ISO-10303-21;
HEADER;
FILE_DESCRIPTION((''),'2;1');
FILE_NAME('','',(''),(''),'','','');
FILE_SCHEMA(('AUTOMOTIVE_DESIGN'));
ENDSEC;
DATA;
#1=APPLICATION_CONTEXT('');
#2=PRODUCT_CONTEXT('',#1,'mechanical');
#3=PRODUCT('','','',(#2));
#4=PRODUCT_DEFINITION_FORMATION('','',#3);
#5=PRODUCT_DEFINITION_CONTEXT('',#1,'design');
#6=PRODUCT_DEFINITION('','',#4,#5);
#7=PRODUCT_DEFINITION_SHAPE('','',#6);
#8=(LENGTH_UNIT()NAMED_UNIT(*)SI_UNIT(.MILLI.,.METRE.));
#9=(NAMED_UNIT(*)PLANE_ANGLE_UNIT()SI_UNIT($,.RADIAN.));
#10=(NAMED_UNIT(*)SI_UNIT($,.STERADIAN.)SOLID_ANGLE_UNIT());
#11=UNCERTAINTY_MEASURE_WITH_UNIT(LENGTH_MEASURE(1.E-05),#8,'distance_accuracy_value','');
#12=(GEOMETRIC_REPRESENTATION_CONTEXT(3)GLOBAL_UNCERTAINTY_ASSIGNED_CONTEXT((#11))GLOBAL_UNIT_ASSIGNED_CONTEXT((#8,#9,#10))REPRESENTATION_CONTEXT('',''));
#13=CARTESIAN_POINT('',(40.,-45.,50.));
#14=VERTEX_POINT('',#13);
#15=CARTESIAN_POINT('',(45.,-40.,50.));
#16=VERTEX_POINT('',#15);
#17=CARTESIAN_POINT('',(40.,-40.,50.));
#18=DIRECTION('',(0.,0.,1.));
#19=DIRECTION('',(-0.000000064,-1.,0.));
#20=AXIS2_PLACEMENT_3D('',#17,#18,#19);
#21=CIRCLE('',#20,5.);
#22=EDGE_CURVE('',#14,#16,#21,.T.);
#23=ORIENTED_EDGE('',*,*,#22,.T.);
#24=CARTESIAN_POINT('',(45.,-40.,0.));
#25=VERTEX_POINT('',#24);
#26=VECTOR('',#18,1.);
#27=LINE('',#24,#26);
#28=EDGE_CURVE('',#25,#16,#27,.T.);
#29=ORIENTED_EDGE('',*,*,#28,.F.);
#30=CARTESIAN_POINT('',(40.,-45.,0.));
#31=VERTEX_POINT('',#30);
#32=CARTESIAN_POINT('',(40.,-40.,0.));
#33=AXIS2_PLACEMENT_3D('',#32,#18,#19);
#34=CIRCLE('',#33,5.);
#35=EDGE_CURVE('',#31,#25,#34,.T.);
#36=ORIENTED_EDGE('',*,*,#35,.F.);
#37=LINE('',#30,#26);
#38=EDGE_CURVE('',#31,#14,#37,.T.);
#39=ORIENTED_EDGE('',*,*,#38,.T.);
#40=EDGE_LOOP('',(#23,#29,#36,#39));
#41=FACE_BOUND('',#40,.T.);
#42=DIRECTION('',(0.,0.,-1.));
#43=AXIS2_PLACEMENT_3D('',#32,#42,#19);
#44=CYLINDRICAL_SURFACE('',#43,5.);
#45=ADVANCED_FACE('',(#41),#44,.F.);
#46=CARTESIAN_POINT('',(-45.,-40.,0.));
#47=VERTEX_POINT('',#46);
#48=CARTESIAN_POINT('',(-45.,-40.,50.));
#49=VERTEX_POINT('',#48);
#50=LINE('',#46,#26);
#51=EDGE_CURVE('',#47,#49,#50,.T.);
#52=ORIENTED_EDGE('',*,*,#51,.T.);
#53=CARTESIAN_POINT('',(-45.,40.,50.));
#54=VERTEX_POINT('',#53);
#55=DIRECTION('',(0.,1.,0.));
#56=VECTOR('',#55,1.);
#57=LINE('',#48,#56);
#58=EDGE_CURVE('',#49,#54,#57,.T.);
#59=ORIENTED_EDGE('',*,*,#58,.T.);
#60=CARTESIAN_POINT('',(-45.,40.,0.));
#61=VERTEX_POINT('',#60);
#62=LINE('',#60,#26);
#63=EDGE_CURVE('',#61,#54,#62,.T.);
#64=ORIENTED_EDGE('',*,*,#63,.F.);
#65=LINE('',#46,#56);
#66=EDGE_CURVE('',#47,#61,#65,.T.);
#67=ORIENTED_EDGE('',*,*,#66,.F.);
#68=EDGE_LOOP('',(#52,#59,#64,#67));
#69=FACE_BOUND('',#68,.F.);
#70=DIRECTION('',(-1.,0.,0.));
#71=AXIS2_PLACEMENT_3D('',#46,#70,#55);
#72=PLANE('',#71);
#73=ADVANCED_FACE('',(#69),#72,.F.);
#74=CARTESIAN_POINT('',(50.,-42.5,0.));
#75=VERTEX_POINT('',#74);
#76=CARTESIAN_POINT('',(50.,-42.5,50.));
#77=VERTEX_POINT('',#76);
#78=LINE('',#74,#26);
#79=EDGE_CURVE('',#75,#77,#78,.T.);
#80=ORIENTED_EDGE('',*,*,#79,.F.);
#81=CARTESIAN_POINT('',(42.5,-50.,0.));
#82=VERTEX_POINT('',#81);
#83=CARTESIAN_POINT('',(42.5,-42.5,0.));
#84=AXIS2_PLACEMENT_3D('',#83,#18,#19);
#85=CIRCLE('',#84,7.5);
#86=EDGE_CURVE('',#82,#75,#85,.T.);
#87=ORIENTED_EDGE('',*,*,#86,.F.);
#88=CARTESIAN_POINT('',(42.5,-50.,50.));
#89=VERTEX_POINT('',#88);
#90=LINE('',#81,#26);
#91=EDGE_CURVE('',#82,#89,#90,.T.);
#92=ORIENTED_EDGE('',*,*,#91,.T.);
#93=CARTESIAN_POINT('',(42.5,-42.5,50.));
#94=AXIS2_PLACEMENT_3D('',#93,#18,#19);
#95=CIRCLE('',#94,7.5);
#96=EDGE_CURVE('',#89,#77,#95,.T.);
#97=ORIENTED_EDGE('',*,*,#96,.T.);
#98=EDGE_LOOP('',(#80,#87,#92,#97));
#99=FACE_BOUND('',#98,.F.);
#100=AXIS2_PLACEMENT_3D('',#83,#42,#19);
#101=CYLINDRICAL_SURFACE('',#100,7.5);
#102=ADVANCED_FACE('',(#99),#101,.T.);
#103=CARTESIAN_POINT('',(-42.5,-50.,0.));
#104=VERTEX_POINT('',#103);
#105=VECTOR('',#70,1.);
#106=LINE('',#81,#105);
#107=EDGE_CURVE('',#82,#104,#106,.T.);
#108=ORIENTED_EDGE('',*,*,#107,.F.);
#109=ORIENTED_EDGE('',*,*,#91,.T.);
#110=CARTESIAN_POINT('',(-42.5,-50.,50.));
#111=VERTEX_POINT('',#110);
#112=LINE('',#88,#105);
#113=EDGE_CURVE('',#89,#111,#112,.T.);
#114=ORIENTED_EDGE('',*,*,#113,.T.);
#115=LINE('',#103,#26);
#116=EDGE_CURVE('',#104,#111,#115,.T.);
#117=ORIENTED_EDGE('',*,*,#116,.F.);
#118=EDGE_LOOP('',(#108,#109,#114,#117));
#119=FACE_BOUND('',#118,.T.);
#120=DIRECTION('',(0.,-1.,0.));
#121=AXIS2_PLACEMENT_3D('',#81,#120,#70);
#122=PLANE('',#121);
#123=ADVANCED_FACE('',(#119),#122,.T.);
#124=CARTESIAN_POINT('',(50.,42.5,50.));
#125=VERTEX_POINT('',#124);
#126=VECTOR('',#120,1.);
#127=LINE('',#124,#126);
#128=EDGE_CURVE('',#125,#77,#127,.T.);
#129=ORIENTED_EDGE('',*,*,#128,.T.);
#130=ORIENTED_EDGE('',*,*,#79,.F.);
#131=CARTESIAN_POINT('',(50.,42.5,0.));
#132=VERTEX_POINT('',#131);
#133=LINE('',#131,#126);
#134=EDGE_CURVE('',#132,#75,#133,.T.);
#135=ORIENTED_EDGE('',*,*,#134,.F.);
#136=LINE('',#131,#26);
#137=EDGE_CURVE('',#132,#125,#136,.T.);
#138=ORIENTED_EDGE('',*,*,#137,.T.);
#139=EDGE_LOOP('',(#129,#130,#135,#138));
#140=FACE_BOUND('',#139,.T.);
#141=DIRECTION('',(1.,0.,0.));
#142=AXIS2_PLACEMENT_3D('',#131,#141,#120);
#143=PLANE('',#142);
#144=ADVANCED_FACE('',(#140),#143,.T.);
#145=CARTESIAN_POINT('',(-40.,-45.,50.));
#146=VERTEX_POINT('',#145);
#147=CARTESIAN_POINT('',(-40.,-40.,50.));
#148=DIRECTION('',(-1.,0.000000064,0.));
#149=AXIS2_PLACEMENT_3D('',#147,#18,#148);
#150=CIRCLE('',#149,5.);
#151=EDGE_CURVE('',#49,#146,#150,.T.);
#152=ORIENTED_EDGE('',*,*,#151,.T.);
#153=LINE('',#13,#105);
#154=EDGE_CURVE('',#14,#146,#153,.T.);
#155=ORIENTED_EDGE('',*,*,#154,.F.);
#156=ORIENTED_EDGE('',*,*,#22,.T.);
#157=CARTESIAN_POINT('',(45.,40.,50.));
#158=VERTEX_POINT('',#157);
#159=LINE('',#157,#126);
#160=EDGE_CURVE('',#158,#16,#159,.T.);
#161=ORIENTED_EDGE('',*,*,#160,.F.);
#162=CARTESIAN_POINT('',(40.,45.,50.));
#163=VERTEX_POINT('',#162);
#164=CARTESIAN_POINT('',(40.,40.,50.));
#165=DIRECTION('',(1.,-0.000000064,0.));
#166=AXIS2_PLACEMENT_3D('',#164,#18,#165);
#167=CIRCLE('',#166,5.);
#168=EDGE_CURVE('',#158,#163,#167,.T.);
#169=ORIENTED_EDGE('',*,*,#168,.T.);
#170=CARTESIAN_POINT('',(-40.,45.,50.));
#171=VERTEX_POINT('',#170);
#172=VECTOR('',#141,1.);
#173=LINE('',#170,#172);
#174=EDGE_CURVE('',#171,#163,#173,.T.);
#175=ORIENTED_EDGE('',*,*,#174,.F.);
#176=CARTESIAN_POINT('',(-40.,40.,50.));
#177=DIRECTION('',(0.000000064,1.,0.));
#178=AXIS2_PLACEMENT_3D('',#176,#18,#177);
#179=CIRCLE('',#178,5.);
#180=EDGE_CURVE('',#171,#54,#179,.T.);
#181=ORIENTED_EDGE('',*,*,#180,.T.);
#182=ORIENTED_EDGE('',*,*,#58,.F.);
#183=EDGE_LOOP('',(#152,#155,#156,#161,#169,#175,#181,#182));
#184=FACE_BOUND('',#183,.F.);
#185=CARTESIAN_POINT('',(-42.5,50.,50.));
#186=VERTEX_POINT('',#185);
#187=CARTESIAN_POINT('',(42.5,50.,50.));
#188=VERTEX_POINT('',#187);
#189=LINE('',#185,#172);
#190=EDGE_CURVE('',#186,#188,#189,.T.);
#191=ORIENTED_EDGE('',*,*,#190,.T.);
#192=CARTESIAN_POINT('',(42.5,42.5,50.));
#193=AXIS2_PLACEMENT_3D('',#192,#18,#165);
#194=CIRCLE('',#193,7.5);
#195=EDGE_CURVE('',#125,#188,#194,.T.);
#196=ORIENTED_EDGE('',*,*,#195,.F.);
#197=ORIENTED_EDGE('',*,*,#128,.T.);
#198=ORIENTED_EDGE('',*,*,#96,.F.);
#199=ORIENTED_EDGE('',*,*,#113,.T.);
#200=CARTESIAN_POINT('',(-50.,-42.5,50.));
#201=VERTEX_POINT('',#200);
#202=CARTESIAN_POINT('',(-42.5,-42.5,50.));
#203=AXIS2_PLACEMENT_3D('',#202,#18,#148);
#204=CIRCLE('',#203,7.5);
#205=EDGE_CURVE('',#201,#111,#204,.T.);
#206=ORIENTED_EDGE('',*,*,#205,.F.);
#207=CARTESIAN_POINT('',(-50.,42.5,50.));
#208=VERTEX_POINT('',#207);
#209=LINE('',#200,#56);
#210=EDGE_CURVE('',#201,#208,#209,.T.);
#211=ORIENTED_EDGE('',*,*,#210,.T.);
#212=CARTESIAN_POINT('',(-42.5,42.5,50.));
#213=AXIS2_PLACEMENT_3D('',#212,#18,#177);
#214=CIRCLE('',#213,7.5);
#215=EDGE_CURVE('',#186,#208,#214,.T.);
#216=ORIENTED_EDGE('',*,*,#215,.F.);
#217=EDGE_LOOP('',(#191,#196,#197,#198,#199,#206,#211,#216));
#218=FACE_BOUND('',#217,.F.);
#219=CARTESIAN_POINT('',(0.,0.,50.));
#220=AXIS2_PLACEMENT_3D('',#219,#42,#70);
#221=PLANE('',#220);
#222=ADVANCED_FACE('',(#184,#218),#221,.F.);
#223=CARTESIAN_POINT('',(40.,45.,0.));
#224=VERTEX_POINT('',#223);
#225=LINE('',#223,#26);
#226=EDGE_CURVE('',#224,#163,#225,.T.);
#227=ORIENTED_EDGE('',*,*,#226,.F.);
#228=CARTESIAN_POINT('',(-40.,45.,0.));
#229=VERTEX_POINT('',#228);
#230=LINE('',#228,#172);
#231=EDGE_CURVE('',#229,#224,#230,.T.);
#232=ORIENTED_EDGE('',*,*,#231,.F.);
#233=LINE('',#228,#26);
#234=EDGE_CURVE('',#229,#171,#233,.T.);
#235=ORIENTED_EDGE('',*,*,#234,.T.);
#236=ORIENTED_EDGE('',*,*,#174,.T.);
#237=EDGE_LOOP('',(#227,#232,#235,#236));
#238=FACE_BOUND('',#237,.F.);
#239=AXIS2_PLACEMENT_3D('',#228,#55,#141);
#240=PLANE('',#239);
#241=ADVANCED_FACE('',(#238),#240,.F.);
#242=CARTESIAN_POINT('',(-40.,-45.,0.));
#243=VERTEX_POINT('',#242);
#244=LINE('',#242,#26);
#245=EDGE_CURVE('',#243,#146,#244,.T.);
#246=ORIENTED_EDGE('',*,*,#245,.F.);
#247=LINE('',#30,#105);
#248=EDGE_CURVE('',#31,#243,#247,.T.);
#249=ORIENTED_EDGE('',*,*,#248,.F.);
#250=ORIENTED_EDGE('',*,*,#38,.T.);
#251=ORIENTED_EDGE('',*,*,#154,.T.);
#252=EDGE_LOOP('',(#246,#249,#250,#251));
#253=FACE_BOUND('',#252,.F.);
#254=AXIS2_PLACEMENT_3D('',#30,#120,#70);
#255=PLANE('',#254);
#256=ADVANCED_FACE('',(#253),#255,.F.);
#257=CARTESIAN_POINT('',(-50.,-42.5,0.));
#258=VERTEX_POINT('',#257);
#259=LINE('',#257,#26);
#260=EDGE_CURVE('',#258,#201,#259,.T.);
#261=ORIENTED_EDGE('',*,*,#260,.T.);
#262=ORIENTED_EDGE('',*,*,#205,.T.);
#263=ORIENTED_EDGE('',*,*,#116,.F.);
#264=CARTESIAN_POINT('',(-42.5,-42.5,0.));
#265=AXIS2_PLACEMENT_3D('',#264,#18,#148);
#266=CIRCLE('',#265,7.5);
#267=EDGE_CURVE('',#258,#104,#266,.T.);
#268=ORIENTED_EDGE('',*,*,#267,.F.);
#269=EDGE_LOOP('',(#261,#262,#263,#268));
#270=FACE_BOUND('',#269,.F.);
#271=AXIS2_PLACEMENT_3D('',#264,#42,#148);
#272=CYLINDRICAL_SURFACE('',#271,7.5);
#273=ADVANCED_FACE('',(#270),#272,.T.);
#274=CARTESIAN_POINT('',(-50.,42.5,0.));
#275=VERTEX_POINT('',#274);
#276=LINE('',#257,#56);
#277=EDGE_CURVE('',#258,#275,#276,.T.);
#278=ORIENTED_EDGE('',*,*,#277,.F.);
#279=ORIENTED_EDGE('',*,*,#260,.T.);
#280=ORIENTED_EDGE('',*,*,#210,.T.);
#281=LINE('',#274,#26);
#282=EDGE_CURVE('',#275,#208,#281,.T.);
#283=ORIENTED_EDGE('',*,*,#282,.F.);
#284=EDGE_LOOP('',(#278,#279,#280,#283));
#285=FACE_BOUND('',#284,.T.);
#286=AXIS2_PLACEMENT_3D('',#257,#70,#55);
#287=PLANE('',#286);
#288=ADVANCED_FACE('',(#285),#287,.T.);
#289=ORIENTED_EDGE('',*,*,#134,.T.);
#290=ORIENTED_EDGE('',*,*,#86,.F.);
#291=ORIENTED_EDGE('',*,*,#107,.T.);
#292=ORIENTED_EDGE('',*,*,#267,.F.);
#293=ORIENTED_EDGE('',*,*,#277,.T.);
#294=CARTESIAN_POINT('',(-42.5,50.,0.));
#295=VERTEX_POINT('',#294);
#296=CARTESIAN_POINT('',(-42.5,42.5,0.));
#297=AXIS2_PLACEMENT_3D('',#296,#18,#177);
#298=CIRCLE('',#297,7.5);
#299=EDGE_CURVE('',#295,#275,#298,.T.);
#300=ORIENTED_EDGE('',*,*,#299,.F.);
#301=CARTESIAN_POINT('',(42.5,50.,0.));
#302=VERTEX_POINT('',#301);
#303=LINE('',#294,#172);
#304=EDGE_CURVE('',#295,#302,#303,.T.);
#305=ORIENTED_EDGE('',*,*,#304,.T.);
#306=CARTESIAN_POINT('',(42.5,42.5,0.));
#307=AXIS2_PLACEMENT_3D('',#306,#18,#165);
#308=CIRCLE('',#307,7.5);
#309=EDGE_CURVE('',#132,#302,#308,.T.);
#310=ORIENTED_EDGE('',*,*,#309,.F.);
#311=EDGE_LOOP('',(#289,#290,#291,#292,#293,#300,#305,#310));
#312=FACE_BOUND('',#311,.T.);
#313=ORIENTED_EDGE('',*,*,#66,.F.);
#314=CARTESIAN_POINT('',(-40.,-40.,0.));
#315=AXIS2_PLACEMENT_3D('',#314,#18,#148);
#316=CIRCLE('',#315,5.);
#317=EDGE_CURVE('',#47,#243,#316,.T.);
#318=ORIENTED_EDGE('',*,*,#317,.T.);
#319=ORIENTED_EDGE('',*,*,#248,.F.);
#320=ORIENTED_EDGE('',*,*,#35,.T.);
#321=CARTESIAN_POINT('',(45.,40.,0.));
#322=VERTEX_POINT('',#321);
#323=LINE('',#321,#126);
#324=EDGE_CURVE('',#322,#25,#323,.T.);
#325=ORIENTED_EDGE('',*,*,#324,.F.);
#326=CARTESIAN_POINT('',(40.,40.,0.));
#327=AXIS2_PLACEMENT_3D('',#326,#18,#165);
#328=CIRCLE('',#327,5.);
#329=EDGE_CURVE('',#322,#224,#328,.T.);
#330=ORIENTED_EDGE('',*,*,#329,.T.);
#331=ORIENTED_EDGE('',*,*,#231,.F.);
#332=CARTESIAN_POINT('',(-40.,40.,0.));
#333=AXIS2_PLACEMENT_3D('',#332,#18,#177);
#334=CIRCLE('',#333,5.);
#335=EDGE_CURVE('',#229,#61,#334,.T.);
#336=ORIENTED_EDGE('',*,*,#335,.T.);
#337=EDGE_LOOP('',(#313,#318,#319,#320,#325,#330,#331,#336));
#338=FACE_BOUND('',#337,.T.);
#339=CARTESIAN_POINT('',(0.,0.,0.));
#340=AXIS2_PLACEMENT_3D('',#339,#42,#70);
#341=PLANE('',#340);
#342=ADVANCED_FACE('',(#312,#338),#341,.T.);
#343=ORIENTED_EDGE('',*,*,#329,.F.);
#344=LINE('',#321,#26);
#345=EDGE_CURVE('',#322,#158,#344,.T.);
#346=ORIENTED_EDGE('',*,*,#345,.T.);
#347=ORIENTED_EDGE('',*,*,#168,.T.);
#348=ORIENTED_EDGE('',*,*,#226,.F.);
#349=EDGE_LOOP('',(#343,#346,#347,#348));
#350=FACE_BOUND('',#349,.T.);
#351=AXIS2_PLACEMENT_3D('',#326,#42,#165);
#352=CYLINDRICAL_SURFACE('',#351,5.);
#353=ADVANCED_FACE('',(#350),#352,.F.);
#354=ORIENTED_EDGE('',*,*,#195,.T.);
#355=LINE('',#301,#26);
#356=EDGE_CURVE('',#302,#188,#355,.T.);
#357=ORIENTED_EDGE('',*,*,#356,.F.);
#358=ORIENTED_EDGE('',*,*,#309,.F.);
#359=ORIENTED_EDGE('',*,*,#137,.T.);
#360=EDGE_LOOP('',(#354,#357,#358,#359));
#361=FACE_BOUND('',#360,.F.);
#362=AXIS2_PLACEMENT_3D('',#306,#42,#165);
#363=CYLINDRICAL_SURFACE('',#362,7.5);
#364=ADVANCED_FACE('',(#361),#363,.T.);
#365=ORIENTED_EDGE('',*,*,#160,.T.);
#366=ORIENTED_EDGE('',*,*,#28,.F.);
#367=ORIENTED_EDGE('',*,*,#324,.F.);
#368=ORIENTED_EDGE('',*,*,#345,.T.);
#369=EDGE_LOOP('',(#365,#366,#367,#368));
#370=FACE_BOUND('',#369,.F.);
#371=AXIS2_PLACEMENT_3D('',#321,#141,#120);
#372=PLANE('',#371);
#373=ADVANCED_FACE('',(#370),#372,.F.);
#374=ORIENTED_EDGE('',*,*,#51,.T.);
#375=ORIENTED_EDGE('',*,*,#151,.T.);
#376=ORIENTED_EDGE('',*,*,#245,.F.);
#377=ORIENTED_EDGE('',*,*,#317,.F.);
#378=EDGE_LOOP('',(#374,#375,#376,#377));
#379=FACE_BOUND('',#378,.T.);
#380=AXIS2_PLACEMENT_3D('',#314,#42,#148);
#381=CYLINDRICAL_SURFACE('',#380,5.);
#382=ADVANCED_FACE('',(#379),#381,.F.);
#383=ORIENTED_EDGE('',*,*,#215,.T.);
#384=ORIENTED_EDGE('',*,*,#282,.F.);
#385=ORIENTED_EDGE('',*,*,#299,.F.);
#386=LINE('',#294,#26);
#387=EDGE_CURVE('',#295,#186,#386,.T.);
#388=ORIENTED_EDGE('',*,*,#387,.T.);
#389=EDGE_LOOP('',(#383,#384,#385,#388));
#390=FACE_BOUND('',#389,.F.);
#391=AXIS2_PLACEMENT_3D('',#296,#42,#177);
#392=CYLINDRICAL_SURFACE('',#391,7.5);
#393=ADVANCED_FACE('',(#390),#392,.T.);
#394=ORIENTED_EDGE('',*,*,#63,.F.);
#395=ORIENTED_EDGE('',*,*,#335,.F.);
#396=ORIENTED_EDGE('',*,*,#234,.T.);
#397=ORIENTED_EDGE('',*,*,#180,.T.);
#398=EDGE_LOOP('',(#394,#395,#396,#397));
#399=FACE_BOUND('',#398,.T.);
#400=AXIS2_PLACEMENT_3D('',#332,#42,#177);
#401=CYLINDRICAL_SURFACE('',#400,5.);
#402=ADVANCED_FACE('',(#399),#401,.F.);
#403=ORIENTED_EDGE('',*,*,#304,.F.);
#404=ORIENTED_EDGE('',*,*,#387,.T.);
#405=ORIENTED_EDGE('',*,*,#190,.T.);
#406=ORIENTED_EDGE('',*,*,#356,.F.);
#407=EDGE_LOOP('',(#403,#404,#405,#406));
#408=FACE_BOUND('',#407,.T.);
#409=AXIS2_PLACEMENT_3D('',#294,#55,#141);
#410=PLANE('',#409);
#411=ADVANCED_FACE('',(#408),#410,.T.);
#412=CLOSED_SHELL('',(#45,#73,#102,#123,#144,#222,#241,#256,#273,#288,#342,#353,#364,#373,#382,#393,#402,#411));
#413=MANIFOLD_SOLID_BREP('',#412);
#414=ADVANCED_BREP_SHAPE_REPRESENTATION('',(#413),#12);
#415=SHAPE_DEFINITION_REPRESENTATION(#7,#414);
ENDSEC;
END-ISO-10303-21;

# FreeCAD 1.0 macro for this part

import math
import FreeCAD as App
import Part
import Sketcher

V = App.Vector
Q = App.Units.Quantity

doc = App.newDocument("Part")
body = doc.addObject("PartDesign::Body", "Body")

# Sketch on XY plane
sketch1 = doc.addObject("Sketcher::SketchObject", "Sketch")
body.addObject(sketch1)
sketch1.AttachmentSupport = (doc.XY_Plane, [""])
sketch1.MapMode = "FlatFace"
sketch1.addGeometry(Part.LineSegment(V(42.5, 50, 0), V(-42.5, 50, 0)), False)
sketch1.addGeometry(Part.ArcOfCircle(Part.Circle(V(-42.5, 42.5, 0), V(0, 0, 1), 7.5), math.radians(89.999996), math.radians(180.000004)), False)
sketch1.addGeometry(Part.LineSegment(V(-50, 42.5, 0), V(-50, -42.5, 0)), False)
sketch1.addGeometry(Part.ArcOfCircle(Part.Circle(V(-42.5, -42.5, 0), V(0, 0, 1), 7.5), math.radians(179.999996), math.radians(270.000004)), False)
sketch1.addGeometry(Part.LineSegment(V(-42.5, -50, 0), V(42.5, -50, 0)), False)
sketch1.addGeometry(Part.ArcOfCircle(Part.Circle(V(42.5, -42.5, 0), V(0, 0, 1), 7.5), math.radians(-90.000004), math.radians(0.000004)), False)
sketch1.addGeometry(Part.LineSegment(V(50, -42.5, 0), V(50, 42.5, 0)), False)
sketch1.addGeometry(Part.ArcOfCircle(Part.Circle(V(42.5, 42.5, 0), V(0, 0, 1), 7.5), math.radians(-0.000004), math.radians(90.000004)), False)
sketch1.addGeometry(Part.LineSegment(V(-40, 45, 0), V(40, 45, 0)), False)
sketch1.addGeometry(Part.ArcOfCircle(Part.Circle(V(40, 40, 0), V(0, 0, 1), 5), math.radians(-0.000004), math.radians(90.000004)), False)
sketch1.addGeometry(Part.LineSegment(V(45, 40, 0), V(45, -40, 0)), False)
sketch1.addGeometry(Part.ArcOfCircle(Part.Circle(V(40, -40, 0), V(0, 0, 1), 5), math.radians(-90.000004), math.radians(0.000004)), False)
sketch1.addGeometry(Part.LineSegment(V(40, -45, 0), V(-40, -45, 0)), False)
sketch1.addGeometry(Part.ArcOfCircle(Part.Circle(V(-40, -40, 0), V(0, 0, 1), 5), math.radians(179.999996), math.radians(270.000004)), False)
sketch1.addGeometry(Part.LineSegment(V(-45, -40, 0), V(-45, 40, 0)), False)
sketch1.addGeometry(Part.ArcOfCircle(Part.Circle(V(-40, 40, 0), V(0, 0, 1), 5), math.radians(89.999996), math.radians(180.000004)), False)
sketch1.addConstraint(Sketcher.Constraint("Tangent", 0, 2, 1, 1))
sketch1.addConstraint(Sketcher.Constraint("Tangent", 1, 2, 2, 1))
sketch1.addConstraint(Sketcher.Constraint("Tangent", 2, 2, 3, 1))
sketch1.addConstraint(Sketcher.Constraint("Tangent", 3, 2, 4, 1))
sketch1.addConstraint(Sketcher.Constraint("Tangent", 4, 2, 5, 1))
sketch1.addConstraint(Sketcher.Constraint("Tangent", 5, 2, 6, 1))
sketch1.addConstraint(Sketcher.Constraint("Tangent", 6, 2, 7, 1))
sketch1.addConstraint(Sketcher.Constraint("Tangent", 7, 2, 0, 1))
sketch1.addConstraint(Sketcher.Constraint("Tangent", 8, 2, 9, 2))
sketch1.addConstraint(Sketcher.Constraint("Tangent", 9, 1, 10, 1))
sketch1.addConstraint(Sketcher.Constraint("Tangent", 10, 2, 11, 2))
sketch1.addConstraint(Sketcher.Constraint("Tangent", 11, 1, 12, 1))
sketch1.addConstraint(Sketcher.Constraint("Tangent", 12, 2, 13, 2))
sketch1.addConstraint(Sketcher.Constraint("Tangent", 13, 1, 14, 1))
sketch1.addConstraint(Sketcher.Constraint("Tangent", 14, 2, 15, 2))
sketch1.addConstraint(Sketcher.Constraint("Tangent", 15, 1, 8, 1))
sketch1.addConstraint(Sketcher.Constraint("Horizontal", 0))
sketch1.addConstraint(Sketcher.Constraint("Vertical", 2))
sketch1.addConstraint(Sketcher.Constraint("Horizontal", 4))
sketch1.addConstraint(Sketcher.Constraint("Vertical", 6))
sketch1.addConstraint(Sketcher.Constraint("Horizontal", 8))
sketch1.addConstraint(Sketcher.Constraint("Vertical", 10))
sketch1.addConstraint(Sketcher.Constraint("Horizontal", 12))
sketch1.addConstraint(Sketcher.Constraint("Vertical", 14))
sketch1.addConstraint(Sketcher.Constraint("Equal", 1, 3))
sketch1.addConstraint(Sketcher.Constraint("Equal", 3, 5))
sketch1.addConstraint(Sketcher.Constraint("Equal", 5, 7))
sketch1.addConstraint(Sketcher.Constraint("Equal", 9, 11))
sketch1.addConstraint(Sketcher.Constraint("Equal", 11, 13))
sketch1.addConstraint(Sketcher.Constraint("Equal", 13, 15))
sketch1.addConstraint(Sketcher.Constraint("Symmetric", 1, 3, 5, 3, -1, 1))
sketch1.addConstraint(Sketcher.Constraint("Symmetric", 9, 3, 13, 3, -1, 1))
sketch1.addConstraint(Sketcher.Constraint("Equal", 4, 2))
sketch1.addConstraint(Sketcher.Constraint("Equal", 12, 10))
sketch1.addConstraint(Sketcher.Constraint("Radius", 9, Q("5 mm")))
sketch1.addConstraint(Sketcher.Constraint("Radius", 1, Q("7.5 mm")))
sketch1.addConstraint(Sketcher.Constraint("DistanceX", 0, 2, 0, 1, Q("85 mm")))
sketch1.addConstraint(Sketcher.Constraint("DistanceX", 8, 1, 8, 2, Q("80 mm")))
pad1 = doc.addObject("PartDesign::Pad", "Pad")
body.addObject(pad1)
pad1.Profile = sketch1
pad1.Length = 50

doc.recompute()
